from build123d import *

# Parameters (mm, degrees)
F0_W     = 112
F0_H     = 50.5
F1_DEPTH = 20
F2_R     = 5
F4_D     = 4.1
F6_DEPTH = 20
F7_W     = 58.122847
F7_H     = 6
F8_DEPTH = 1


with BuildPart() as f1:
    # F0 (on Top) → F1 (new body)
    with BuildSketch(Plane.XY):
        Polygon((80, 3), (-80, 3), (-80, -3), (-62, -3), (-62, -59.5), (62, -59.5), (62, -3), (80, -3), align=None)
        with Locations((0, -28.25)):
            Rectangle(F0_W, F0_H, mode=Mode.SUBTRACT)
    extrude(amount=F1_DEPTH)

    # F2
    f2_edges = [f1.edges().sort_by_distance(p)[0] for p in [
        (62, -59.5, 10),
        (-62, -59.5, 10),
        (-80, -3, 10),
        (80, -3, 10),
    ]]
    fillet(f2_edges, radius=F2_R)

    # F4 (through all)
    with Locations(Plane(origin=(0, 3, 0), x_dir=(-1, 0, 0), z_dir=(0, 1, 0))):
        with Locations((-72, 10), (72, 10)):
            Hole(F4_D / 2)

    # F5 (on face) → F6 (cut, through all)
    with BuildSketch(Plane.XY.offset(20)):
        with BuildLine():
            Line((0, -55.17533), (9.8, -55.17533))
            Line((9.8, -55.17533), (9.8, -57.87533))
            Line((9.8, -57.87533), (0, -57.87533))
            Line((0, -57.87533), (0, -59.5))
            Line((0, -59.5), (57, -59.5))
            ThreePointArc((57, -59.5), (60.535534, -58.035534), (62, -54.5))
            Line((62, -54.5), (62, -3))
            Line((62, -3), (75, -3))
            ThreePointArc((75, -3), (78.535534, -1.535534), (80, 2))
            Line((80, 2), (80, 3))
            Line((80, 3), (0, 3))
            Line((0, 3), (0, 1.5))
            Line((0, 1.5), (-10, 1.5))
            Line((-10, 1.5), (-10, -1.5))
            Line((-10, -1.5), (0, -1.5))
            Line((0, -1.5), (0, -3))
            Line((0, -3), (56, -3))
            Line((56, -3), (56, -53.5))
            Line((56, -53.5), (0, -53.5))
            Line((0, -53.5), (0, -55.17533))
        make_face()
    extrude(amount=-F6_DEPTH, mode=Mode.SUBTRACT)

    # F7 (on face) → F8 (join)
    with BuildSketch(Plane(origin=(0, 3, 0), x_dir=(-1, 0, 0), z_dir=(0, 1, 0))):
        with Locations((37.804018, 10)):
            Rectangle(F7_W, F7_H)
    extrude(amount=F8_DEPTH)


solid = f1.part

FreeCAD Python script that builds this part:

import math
import FreeCAD as App
import Part
import Sketcher


def edges_at(feature, points):
    """Names of the edges that pass closest to the given points."""
    edges = feature.Shape.Edges
    near = lambda p: min(range(len(edges)), key=lambda i: edges[i].distToShape(Part.Vertex(*p))[0])
    return sorted({f"Edge{near(p) + 1}" for p in points})


def add_polygon(sketch, points):
    """Adds a closed chain of lines whose ends are joined by coincident constraints."""
    first, n = sketch.GeometryCount, len(points)
    for a, b in zip(points, points[1:] + points[:1]):
        sketch.addGeometry(Part.LineSegment(App.Vector(*a, 0), App.Vector(*b, 0)), False)
    for i in range(n):
        sketch.addConstraint(Sketcher.Constraint("Coincident", first + i, 2, first + (i + 1) % n, 1))

doc = App.newDocument("Part")
body = doc.addObject("PartDesign::Body", "Body")

# Sketch on XY plane
sketch1 = body.newObject("Sketcher::SketchObject", "Sketch")
sketch1.AttachmentSupport = (doc.getObject("XY_Plane"), [""])
sketch1.MapMode = "FlatFace"
add_polygon(sketch1, [(80, 3), (-80, 3), (-80, -3), (-62, -3), (-62, -59.5), (62, -59.5), (62, -3), (80, -3)])  # lines 0-7
add_polygon(sketch1, [(56, -53.5), (-56, -53.5), (-56, -3), (56, -3)])  # lines 8-11
sketch1.addConstraint([
    Sketcher.Constraint("Horizontal", 0),
    Sketcher.Constraint("Vertical", 1),
    Sketcher.Constraint("Horizontal", 2),
    Sketcher.Constraint("Vertical", 3),
    Sketcher.Constraint("Horizontal", 4),
    Sketcher.Constraint("Vertical", 5),
    Sketcher.Constraint("Horizontal", 6),
    Sketcher.Constraint("Vertical", 7),
    Sketcher.Constraint("Horizontal", 8),
    Sketcher.Constraint("Vertical", 9),
    Sketcher.Constraint("Horizontal", 10),
    Sketcher.Constraint("Vertical", 11),
    Sketcher.Constraint("Symmetric", 0, 2, 6, 2, -1, 1),
    Sketcher.Constraint("Symmetric", 2, 2, 5, 2, -2),
    Sketcher.Constraint("Horizontal", 6, 2, 9, 2),
    Sketcher.Constraint("DistanceX", 0, 2, 0, 1, 160.0),
    Sketcher.Constraint("DistanceX", 2, 1, 2, 2, 18.0),
    Sketcher.Constraint("DistanceX", 8, 2, 8, 1, 112.0),
    Sketcher.Constraint("DistanceY", 1, 2, 1, 1, 6.0),
    Sketcher.Constraint("DistanceY", 3, 2, 3, 1, 56.5),
    Sketcher.Constraint("DistanceY", 9, 1, 9, 2, 50.5),
    Sketcher.Constraint("DistanceX", 8, 2, -1, 1, 56.0),
])
pad1 = body.newObject("PartDesign::Pad", "Pad")
pad1.Profile = sketch1
pad1.Length = 20
doc.recompute()

fillet = body.newObject("PartDesign::Fillet", "Fillet")
fillet.Base = (pad1, edges_at(pad1, [
    (62, -59.5, 10),
    (-62, -59.5, 10),
    (-80, -3, 10),
    (80, -3, 10),
]))
fillet.Radius = 5

# Sketch on XZ plane
sketch2 = body.newObject("Sketcher::SketchObject", "Sketch001")
sketch2.AttachmentSupport = (doc.getObject("XZ_Plane"), [""])
sketch2.MapMode = "FlatFace"
sketch2.AttachmentOffset = App.Placement(App.Vector(0, 0, -3), App.Rotation())
sketch2.addGeometry([
    Part.Circle(App.Vector(72, 10, 0), App.Vector(0, 0, 1), 2.05),
    Part.Circle(App.Vector(-72, 10, 0), App.Vector(0, 0, 1), 2.05),
], False)
sketch2.addConstraint([
    Sketcher.Constraint("Equal", 0, 1),
    Sketcher.Constraint("Symmetric", 0, 3, 1, 3, -2),
    Sketcher.Constraint("Diameter", 0, 4.1),
    Sketcher.Constraint("DistanceX", -1, 1, 0, 3, 72.0),
    Sketcher.Constraint("DistanceY", -1, 1, 0, 3, 10.0),
])
doc.recompute()
hole = body.newObject("PartDesign::Hole", "Hole")
hole.Profile = sketch2
hole.ThreadType = "None"
hole.Diameter = 4.1
hole.DepthType = "ThroughAll"
hole.Reversed = True

# Sketch on XY plane
sketch3 = body.newObject("Sketcher::SketchObject", "Sketch002")
sketch3.AttachmentSupport = (doc.getObject("XY_Plane"), [""])
sketch3.MapMode = "FlatFace"
sketch3.AttachmentOffset = App.Placement(App.Vector(0, 0, 20), App.Rotation())
sketch3.addGeometry([
    Part.LineSegment(App.Vector(0, -55.17533, 0), App.Vector(9.8, -55.17533, 0)),  # 0
    Part.LineSegment(App.Vector(9.8, -55.17533, 0), App.Vector(9.8, -57.87533, 0)),  # 1
    Part.LineSegment(App.Vector(9.8, -57.87533, 0), App.Vector(0, -57.87533, 0)),  # 2
    Part.LineSegment(App.Vector(0, -57.87533, 0), App.Vector(0, -59.5, 0)),  # 3
    Part.LineSegment(App.Vector(0, -59.5, 0), App.Vector(57, -59.5, 0)),  # 4
    Part.ArcOfCircle(Part.Circle(App.Vector(57, -54.5, 0), App.Vector(0, 0, 1), 5), math.radians(-90.000004), math.radians(0.000004)),  # 5
    Part.LineSegment(App.Vector(62, -54.5, 0), App.Vector(62, -3, 0)),  # 6
    Part.LineSegment(App.Vector(62, -3, 0), App.Vector(75, -3, 0)),  # 7
    Part.ArcOfCircle(Part.Circle(App.Vector(75, 2, 0), App.Vector(0, 0, 1), 5), math.radians(-90.000004), math.radians(0.000004)),  # 8
    Part.LineSegment(App.Vector(80, 2, 0), App.Vector(80, 3, 0)),  # 9
    Part.LineSegment(App.Vector(80, 3, 0), App.Vector(0, 3, 0)),  # 10
    Part.LineSegment(App.Vector(0, 3, 0), App.Vector(0, 1.5, 0)),  # 11
    Part.LineSegment(App.Vector(0, 1.5, 0), App.Vector(-10, 1.5, 0)),  # 12
    Part.LineSegment(App.Vector(-10, 1.5, 0), App.Vector(-10, -1.5, 0)),  # 13
    Part.LineSegment(App.Vector(-10, -1.5, 0), App.Vector(0, -1.5, 0)),  # 14
    Part.LineSegment(App.Vector(0, -1.5, 0), App.Vector(0, -3, 0)),  # 15
    Part.LineSegment(App.Vector(0, -3, 0), App.Vector(56, -3, 0)),  # 16
    Part.LineSegment(App.Vector(56, -3, 0), App.Vector(56, -53.5, 0)),  # 17
    Part.LineSegment(App.Vector(56, -53.5, 0), App.Vector(0, -53.5, 0)),  # 18
    Part.LineSegment(App.Vector(0, -53.5, 0), App.Vector(0, -55.17533, 0)),  # 19
], False)
sketch3.addConstraint([
    Sketcher.Constraint("Coincident", 0, 2, 1, 1),
    Sketcher.Constraint("Coincident", 1, 2, 2, 1),
    Sketcher.Constraint("Coincident", 2, 2, 3, 1),
    Sketcher.Constraint("Coincident", 3, 2, 4, 1),
    Sketcher.Constraint("Tangent", 4, 2, 5, 1),
    Sketcher.Constraint("Tangent", 5, 2, 6, 1),
    Sketcher.Constraint("Coincident", 6, 2, 7, 1),
    Sketcher.Constraint("Tangent", 7, 2, 8, 1),
    Sketcher.Constraint("Tangent", 8, 2, 9, 1),
    Sketcher.Constraint("Coincident", 9, 2, 10, 1),
    Sketcher.Constraint("Coincident", 10, 2, 11, 1),
    Sketcher.Constraint("Coincident", 11, 2, 12, 1),
    Sketcher.Constraint("Coincident", 12, 2, 13, 1),
    Sketcher.Constraint("Coincident", 13, 2, 14, 1),
    Sketcher.Constraint("Coincident", 14, 2, 15, 1),
    Sketcher.Constraint("Coincident", 15, 2, 16, 1),
    Sketcher.Constraint("Coincident", 16, 2, 17, 1),
    Sketcher.Constraint("Coincident", 17, 2, 18, 1),
    Sketcher.Constraint("Coincident", 18, 2, 19, 1),
    Sketcher.Constraint("Coincident", 19, 2, 0, 1),
    Sketcher.Constraint("Horizontal", 0),
    Sketcher.Constraint("Vertical", 1),
    Sketcher.Constraint("Horizontal", 2),
    Sketcher.Constraint("Vertical", 3),
    Sketcher.Constraint("Horizontal", 4),
    Sketcher.Constraint("Vertical", 6),
    Sketcher.Constraint("Horizontal", 7),
    Sketcher.Constraint("Vertical", 9),
    Sketcher.Constraint("Horizontal", 10),
    Sketcher.Constraint("Vertical", 11),
    Sketcher.Constraint("Horizontal", 12),
    Sketcher.Constraint("Vertical", 13),
    Sketcher.Constraint("Horizontal", 14),
    Sketcher.Constraint("Vertical", 15),
    Sketcher.Constraint("Horizontal", 16),
    Sketcher.Constraint("Vertical", 17),
    Sketcher.Constraint("Horizontal", 18),
    Sketcher.Constraint("Vertical", 19),
    Sketcher.Constraint("Equal", 5, 8),
    Sketcher.Constraint("Symmetric", 11, 2, 14, 2, -1, 1),
    Sketcher.Constraint("Symmetric", 10, 2, 15, 2, -1),
    Sketcher.Constraint("PointOnObject", 2, 2, -2),
    Sketcher.Constraint("PointOnObject", 18, 2, -2),
    Sketcher.Constraint("Horizontal", 7, 2, 15, 2),
    Sketcher.Constraint("Radius", 5, 5.0),
    Sketcher.Constraint("DistanceX", 4, 1, 4, 2, 57.0),
    Sketcher.Constraint("DistanceX", 7, 1, 7, 2, 13.0),
    Sketcher.Constraint("DistanceX", 12, 2, 12, 1, 10.0),
    Sketcher.Constraint("DistanceX", 16, 1, 16, 2, 56.0),
    Sketcher.Constraint("DistanceY", 9, 1, 9, 2, 1.0),
    Sketcher.Constraint("DistanceY", 13, 2, 13, 1, 3.0),
    Sketcher.Constraint("DistanceX", 0, 1, 0, 2, 9.8),
    Sketcher.Constraint("DistanceY", 1, 2, 1, 1, 2.7),
    Sketcher.Constraint("DistanceY", 6, 1, 6, 2, 51.5),
    Sketcher.Constraint("DistanceY", 17, 2, 17, 1, 50.5),
    Sketcher.Constraint("DistanceY", 3, 2, 3, 1, 1.62467),
])
pocket1 = body.newObject("PartDesign::Pocket", "Pocket")
pocket1.Profile = sketch3
pocket1.Type = "ThroughAll"

# Sketch on XZ plane
sketch4 = body.newObject("Sketcher::SketchObject", "Sketch003")
sketch4.AttachmentSupport = (doc.getObject("XZ_Plane"), [""])
sketch4.MapMode = "FlatFace"
sketch4.AttachmentOffset = App.Placement(App.Vector(0, 0, -3), App.Rotation())
add_polygon(sketch4, [(-8.742594, 13), (-8.742594, 7), (-66.865442, 7), (-66.865442, 13)])  # lines 0-3
sketch4.addConstraint([
    Sketcher.Constraint("Vertical", 0),
    Sketcher.Constraint("Horizontal", 1),
    Sketcher.Constraint("Vertical", 2),
    Sketcher.Constraint("Horizontal", 3),
    Sketcher.Constraint("DistanceY", 0, 2, 0, 1, 6.0),
    Sketcher.Constraint("DistanceY", -1, 1, 0, 2, 7.0),
    Sketcher.Constraint("DistanceX", 1, 2, 1, 1, 58.122847),
    Sketcher.Constraint("DistanceX", 1, 2, -1, 1, 66.865442),
])
pad2 = body.newObject("PartDesign::Pad", "Pad001")
pad2.Profile = sketch4
pad2.Length = 1
pad2.Reversed = True

doc.recompute()
